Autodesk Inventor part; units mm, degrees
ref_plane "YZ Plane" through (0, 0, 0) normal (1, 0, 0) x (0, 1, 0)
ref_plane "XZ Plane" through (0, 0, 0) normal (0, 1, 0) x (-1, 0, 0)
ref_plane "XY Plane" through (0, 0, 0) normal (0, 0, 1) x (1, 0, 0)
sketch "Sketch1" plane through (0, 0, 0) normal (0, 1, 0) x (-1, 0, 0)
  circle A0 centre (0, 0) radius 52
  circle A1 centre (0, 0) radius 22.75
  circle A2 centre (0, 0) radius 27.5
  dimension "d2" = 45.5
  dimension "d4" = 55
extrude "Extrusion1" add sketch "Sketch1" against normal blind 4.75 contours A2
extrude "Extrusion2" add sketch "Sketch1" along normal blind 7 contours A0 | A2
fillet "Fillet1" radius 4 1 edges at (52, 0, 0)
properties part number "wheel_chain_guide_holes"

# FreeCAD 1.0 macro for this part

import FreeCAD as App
import Part
import Sketcher
from FreeCAD import Vector


def edges_at(feature, points):
    """Names of the edges that pass closest to the given points."""
    edges = feature.Shape.Edges
    near = lambda p: min(range(len(edges)), key=lambda i: edges[i].distToShape(Part.Vertex(*p))[0])
    return sorted({f"Edge{near(p) + 1}" for p in points})

doc = App.newDocument("Part")
body = doc.addObject("PartDesign::Body", "Body")

# Sketch on XZ plane
sketch1 = body.newObject("Sketcher::SketchObject", "Sketch")
sketch1.AttachmentSupport = (doc.getObject("XZ_Plane"), [""])
sketch1.MapMode = "FlatFace"
sketch1.addGeometry([
    Part.Circle(Vector(0, 0, 0), Vector(0, 0, 1), 28),
    Part.Circle(Vector(0, 0, 0), Vector(0, 0, 1), 23),
], False)
sketch1.addConstraint([
    Sketcher.Constraint("Coincident", 0, 3, -1, 1),
    Sketcher.Constraint("Coincident", 1, 3, -1, 1),
    Sketcher.Constraint("Diameter", 0, 55.0),
    Sketcher.Constraint("Diameter", 1, 45.5),
])
pad1 = body.newObject("PartDesign::Pad", "Pad")
pad1.Profile = sketch1
pad1.Length = 4.75

# Sketch on XZ plane
sketch2 = body.newObject("Sketcher::SketchObject", "Sketch001")
sketch2.AttachmentSupport = (doc.getObject("XZ_Plane"), [""])
sketch2.MapMode = "FlatFace"
sketch2.addGeometry([
    Part.Circle(Vector(0, 0, 0), Vector(0, 0, 1), 52),
    Part.Circle(Vector(0, 0, 0), Vector(0, 0, 1), 23),
], False)
sketch2.addConstraint([
    Sketcher.Constraint("Coincident", 0, 3, -1, 1),
    Sketcher.Constraint("Coincident", 1, 3, -1, 1),
    Sketcher.Constraint("Diameter", 1, 45.5),
    Sketcher.Constraint("Diameter", 0, 104.0),
])
pad2 = body.newObject("PartDesign::Pad", "Pad001")
pad2.Profile = sketch2
pad2.Length = 7
pad2.Reversed = True
doc.recompute()

fillet = body.newObject("PartDesign::Fillet", "Fillet")
fillet.Base = (pad2, edges_at(pad2, [(52, 0, 0)]))
fillet.Radius = 4

doc.recompute()
